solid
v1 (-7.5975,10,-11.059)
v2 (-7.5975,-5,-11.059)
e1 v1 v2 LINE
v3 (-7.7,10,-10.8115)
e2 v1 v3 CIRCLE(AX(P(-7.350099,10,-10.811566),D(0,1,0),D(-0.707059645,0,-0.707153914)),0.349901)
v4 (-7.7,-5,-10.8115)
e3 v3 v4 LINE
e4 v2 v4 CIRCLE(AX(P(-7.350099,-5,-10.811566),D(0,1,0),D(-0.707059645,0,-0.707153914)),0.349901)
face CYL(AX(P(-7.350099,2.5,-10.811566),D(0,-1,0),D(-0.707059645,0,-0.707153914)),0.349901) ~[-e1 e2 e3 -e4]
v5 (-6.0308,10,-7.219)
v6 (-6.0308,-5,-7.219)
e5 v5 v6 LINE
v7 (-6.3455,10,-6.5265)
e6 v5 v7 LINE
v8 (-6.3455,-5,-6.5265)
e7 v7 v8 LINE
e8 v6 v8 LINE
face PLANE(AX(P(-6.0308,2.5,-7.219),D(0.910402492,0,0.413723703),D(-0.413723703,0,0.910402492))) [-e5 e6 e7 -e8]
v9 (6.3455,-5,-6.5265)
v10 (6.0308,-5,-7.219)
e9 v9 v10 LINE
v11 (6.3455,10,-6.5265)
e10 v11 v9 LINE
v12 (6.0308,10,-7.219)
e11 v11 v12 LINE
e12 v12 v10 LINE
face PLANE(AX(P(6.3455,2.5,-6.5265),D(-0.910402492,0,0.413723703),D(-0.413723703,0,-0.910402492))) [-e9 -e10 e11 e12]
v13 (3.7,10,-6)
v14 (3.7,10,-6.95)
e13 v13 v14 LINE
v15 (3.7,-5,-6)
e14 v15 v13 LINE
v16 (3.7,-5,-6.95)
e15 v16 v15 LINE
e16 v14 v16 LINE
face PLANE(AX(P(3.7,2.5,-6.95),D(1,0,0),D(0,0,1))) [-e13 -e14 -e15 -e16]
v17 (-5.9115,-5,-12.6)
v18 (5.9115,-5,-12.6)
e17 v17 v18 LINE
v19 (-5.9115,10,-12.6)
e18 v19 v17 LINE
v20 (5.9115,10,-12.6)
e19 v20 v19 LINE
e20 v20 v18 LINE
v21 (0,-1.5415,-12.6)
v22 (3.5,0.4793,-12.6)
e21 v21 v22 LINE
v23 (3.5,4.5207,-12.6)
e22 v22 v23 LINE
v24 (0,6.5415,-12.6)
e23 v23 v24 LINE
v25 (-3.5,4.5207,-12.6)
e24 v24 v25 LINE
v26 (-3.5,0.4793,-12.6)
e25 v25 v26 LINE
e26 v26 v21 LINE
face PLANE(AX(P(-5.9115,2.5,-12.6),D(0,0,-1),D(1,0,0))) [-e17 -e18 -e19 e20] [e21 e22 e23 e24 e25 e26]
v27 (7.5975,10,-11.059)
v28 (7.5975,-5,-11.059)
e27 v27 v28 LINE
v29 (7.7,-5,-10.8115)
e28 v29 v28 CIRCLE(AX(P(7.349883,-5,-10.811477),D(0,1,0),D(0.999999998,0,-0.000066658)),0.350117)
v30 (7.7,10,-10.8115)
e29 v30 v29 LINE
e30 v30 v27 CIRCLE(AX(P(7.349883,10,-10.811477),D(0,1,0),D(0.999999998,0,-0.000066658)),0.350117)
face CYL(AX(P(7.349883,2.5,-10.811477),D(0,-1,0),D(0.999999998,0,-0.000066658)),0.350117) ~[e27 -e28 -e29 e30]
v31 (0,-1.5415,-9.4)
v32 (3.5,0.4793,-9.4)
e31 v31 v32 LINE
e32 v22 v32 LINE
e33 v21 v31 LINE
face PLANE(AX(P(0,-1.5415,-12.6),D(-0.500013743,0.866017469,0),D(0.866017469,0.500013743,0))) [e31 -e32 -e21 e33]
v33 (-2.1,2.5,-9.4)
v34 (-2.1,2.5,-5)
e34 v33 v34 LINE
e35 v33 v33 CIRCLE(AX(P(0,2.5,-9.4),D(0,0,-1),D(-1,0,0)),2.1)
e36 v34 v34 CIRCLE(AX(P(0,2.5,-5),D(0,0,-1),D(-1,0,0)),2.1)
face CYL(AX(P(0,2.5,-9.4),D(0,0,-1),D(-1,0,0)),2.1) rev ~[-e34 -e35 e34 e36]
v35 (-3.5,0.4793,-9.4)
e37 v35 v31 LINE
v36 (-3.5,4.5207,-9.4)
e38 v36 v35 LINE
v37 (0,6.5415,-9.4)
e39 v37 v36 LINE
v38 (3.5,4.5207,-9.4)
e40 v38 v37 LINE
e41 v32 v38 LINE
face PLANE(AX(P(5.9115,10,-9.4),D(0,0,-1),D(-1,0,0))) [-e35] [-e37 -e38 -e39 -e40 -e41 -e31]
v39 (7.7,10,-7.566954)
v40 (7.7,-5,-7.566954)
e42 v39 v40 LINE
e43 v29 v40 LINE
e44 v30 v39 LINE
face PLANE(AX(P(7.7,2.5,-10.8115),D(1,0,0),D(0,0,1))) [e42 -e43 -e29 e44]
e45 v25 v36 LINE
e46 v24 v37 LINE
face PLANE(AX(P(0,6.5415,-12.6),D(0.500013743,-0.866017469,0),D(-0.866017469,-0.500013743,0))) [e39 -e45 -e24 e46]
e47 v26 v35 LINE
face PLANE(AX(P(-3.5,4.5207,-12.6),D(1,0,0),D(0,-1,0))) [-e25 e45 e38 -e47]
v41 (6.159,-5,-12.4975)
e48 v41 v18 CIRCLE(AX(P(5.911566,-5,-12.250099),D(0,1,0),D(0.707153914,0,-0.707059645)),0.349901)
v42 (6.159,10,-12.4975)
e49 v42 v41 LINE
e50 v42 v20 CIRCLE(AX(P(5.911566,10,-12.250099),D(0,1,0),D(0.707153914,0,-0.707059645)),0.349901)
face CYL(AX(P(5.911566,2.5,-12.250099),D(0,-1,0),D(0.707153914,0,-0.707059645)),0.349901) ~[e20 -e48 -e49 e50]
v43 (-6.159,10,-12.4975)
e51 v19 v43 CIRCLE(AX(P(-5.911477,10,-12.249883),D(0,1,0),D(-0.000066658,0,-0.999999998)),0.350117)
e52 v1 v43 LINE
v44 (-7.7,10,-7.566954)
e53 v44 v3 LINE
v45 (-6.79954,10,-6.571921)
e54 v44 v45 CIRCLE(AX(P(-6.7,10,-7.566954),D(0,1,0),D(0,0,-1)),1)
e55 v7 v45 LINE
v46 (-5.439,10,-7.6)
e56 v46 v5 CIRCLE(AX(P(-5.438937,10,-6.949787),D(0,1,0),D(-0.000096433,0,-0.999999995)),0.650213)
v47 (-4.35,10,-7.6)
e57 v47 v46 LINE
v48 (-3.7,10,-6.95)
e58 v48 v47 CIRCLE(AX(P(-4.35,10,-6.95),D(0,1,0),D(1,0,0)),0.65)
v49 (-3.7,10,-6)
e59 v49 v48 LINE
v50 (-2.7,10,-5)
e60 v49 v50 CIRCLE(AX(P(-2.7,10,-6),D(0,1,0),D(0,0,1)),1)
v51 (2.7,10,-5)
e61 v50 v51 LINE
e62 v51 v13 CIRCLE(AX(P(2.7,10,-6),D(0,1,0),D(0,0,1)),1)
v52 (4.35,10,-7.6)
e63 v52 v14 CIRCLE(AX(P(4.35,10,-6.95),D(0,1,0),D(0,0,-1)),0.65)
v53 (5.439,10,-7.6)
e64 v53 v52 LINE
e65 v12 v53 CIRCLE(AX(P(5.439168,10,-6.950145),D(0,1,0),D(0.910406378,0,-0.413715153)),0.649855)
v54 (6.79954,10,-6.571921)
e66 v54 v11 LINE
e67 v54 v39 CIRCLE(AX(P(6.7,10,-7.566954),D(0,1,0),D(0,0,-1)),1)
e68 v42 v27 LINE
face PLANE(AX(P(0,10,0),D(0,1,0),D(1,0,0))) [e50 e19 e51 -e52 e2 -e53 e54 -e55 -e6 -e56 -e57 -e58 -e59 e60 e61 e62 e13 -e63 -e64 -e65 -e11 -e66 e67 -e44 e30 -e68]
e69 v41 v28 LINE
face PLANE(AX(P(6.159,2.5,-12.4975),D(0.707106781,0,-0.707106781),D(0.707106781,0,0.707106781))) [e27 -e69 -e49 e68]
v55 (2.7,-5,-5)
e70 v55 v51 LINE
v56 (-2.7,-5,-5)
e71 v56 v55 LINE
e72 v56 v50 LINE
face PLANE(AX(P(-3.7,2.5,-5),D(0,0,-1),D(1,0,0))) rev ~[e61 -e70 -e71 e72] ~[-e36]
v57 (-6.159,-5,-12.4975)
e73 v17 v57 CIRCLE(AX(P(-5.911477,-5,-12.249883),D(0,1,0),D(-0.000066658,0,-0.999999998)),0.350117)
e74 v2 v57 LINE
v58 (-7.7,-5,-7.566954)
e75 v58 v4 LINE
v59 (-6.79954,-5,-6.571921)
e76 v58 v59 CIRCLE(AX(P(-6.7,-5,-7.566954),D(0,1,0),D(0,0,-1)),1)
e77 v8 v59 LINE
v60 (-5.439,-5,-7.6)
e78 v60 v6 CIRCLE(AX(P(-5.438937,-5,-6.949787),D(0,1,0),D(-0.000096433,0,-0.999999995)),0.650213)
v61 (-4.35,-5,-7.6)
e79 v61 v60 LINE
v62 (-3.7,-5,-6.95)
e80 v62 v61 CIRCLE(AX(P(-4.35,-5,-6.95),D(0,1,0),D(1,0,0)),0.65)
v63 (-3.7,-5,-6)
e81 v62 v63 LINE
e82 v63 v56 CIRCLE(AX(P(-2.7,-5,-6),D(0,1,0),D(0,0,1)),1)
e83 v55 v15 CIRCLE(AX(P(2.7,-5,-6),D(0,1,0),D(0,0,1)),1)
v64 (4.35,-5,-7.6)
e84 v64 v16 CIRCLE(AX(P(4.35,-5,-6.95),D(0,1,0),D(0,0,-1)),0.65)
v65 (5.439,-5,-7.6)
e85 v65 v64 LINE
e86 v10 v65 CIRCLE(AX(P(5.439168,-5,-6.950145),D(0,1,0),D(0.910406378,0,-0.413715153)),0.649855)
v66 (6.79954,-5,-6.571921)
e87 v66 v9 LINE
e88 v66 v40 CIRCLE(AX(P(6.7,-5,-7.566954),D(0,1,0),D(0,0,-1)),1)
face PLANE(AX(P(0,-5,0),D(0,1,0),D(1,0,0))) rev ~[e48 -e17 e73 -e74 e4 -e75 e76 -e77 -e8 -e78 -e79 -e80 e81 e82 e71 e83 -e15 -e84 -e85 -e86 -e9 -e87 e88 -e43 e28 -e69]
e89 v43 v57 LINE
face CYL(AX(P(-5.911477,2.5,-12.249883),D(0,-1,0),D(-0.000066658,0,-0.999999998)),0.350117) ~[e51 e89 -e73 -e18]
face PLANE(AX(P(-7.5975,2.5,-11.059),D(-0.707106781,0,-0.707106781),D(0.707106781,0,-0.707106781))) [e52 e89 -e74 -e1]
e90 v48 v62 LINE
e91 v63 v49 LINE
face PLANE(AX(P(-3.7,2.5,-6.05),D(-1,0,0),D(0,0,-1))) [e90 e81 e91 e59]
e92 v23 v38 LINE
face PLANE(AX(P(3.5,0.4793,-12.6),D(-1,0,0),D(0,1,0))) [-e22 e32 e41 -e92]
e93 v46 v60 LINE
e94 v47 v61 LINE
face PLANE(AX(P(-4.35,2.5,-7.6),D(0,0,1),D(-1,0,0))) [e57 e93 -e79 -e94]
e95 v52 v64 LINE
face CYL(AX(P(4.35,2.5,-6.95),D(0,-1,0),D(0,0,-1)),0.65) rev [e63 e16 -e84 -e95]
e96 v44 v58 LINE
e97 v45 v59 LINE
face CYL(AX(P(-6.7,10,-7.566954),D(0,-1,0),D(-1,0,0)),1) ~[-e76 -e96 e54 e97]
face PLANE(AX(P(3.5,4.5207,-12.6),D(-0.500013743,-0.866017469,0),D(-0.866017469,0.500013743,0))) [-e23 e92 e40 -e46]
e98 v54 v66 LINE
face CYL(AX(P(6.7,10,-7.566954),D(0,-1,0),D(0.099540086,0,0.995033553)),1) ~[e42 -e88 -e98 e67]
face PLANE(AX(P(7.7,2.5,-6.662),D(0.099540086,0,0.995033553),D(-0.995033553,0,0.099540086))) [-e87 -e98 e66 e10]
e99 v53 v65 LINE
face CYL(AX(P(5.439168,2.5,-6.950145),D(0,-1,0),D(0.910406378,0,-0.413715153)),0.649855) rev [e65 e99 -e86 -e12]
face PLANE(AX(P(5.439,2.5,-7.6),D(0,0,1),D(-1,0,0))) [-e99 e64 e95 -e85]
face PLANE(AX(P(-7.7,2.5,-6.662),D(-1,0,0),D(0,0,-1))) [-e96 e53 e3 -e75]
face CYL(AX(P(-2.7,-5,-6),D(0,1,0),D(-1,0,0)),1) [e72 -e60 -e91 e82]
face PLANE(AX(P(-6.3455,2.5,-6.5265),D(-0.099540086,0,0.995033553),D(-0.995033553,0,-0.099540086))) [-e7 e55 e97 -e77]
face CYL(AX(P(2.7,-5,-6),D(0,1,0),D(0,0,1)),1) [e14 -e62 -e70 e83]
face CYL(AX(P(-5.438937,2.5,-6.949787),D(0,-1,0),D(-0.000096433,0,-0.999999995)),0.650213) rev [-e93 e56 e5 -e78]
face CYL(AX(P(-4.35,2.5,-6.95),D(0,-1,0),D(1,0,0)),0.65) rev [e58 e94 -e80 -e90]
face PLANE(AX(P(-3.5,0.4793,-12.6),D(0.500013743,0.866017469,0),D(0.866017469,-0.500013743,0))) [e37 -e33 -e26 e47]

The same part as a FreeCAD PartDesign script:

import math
import FreeCAD as App
import Part
import Sketcher
from FreeCAD import Vector
Q = App.Units.Quantity


def edges_at(feature, points):
    """Names of the edges that pass closest to the given points."""
    edges = feature.Shape.Edges
    near = lambda p: min(range(len(edges)), key=lambda i: edges[i].distToShape(Part.Vertex(*p))[0])
    return sorted({f"Edge{near(p) + 1}" for p in points})

doc = App.newDocument("Part")
body = doc.addObject("PartDesign::Body", "Body")

# Sketch on XZ plane
sketch1 = body.newObject("Sketcher::SketchObject", "Sketch")
sketch1.AttachmentSupport = (doc.getObject("XZ_Plane"), [""])
sketch1.MapMode = "FlatFace"
sketch1.AttachmentOffset = App.Placement(Vector(0, 0, -2.5), App.Rotation())
sketch1.addGeometry(Part.LineSegment(Vector(-3.7, -6.95, 0), Vector(-3.7, -5, 0)), False)
sketch1.addGeometry(Part.LineSegment(Vector(-3.7, -5, 0), Vector(3.7, -5, 0)), False)
sketch1.addGeometry(Part.LineSegment(Vector(3.7, -5, 0), Vector(3.7, -6.95, 0)), False)
sketch1.addGeometry(Part.ArcOfCircle(Part.Circle(Vector(4.35, -6.95, 0), Vector(0, 0, 1), 0.65), math.radians(180), math.radians(270)), False)
sketch1.addGeometry(Part.LineSegment(Vector(4.35, -7.6, 0), Vector(5.439, -7.6, 0)), False)
sketch1.addGeometry(Part.ArcOfCircle(Part.Circle(Vector(5.439, -6.95, 0), Vector(0, 0, 1), 0.650068), math.radians(-90), math.radians(-24.443955)), False)
sketch1.addGeometry(Part.LineSegment(Vector(6.0308, -7.219, 0), Vector(6.3455, -6.5265, 0)), False)
sketch1.addGeometry(Part.LineSegment(Vector(6.3455, -6.5265, 0), Vector(7.7, -6.662, 0)), False)
sketch1.addGeometry(Part.LineSegment(Vector(7.7, -6.662, 0), Vector(7.7, -10.8115, 0)), False)
sketch1.addGeometry(Part.ArcOfCircle(Part.Circle(Vector(7.35, -10.8115, 0), Vector(0, 0, 1), 0.35), math.radians(-45), math.radians(0)), False)
sketch1.addGeometry(Part.LineSegment(Vector(7.5975, -11.059, 0), Vector(6.159, -12.4975, 0)), False)
sketch1.addGeometry(Part.ArcOfCircle(Part.Circle(Vector(5.9115, -12.25, 0), Vector(0, 0, 1), 0.350018), math.radians(-90), math.radians(-45)), False)
sketch1.addGeometry(Part.LineSegment(Vector(5.9115, -12.6, 0), Vector(-5.9115, -12.6, 0)), False)
sketch1.addGeometry(Part.ArcOfCircle(Part.Circle(Vector(-5.9115, -12.25, 0), Vector(0, 0, 1), 0.35), math.radians(-135), math.radians(-90)), False)
sketch1.addGeometry(Part.LineSegment(Vector(-6.159, -12.4975, 0), Vector(-7.5975, -11.059, 0)), False)
sketch1.addGeometry(Part.ArcOfCircle(Part.Circle(Vector(-7.35, -10.8115, 0), Vector(0, 0, 1), 0.350018), math.radians(180), math.radians(225)), False)
sketch1.addGeometry(Part.LineSegment(Vector(-7.7, -10.8115, 0), Vector(-7.7, -6.662, 0)), False)
sketch1.addGeometry(Part.LineSegment(Vector(-7.7, -6.662, 0), Vector(-6.3455, -6.5265, 0)), False)
sketch1.addGeometry(Part.LineSegment(Vector(-6.3455, -6.5265, 0), Vector(-6.0308, -7.219, 0)), False)
sketch1.addGeometry(Part.ArcOfCircle(Part.Circle(Vector(-5.439, -6.95, 0), Vector(0, 0, 1), 0.65), math.radians(-155.556045), math.radians(-90)), False)
sketch1.addGeometry(Part.LineSegment(Vector(-5.439, -7.6, 0), Vector(-4.35, -7.6, 0)), False)
sketch1.addGeometry(Part.ArcOfCircle(Part.Circle(Vector(-4.35, -6.95, 0), Vector(0, 0, 1), 0.65), math.radians(-90), math.radians(0)), False)
sketch1.addConstraint(Sketcher.Constraint("Coincident", 0, 2, 1, 1))
sketch1.addConstraint(Sketcher.Constraint("Coincident", 1, 2, 2, 1))
sketch1.addConstraint(Sketcher.Constraint("Tangent", 2, 2, 3, 1))
sketch1.addConstraint(Sketcher.Constraint("Tangent", 3, 2, 4, 1))
sketch1.addConstraint(Sketcher.Constraint("Tangent", 4, 2, 5, 1))
sketch1.addConstraint(Sketcher.Constraint("Tangent", 5, 2, 6, 1))
sketch1.addConstraint(Sketcher.Constraint("Coincident", 6, 2, 7, 1))
sketch1.addConstraint(Sketcher.Constraint("Coincident", 7, 2, 8, 1))
sketch1.addConstraint(Sketcher.Constraint("Tangent", 8, 2, 9, 2))
sketch1.addConstraint(Sketcher.Constraint("Tangent", 9, 1, 10, 1))
sketch1.addConstraint(Sketcher.Constraint("Tangent", 10, 2, 11, 2))
sketch1.addConstraint(Sketcher.Constraint("Tangent", 11, 1, 12, 1))
sketch1.addConstraint(Sketcher.Constraint("Tangent", 12, 2, 13, 2))
sketch1.addConstraint(Sketcher.Constraint("Tangent", 13, 1, 14, 1))
sketch1.addConstraint(Sketcher.Constraint("Tangent", 14, 2, 15, 2))
sketch1.addConstraint(Sketcher.Constraint("Tangent", 15, 1, 16, 1))
sketch1.addConstraint(Sketcher.Constraint("Coincident", 16, 2, 17, 1))
sketch1.addConstraint(Sketcher.Constraint("Coincident", 17, 2, 18, 1))
sketch1.addConstraint(Sketcher.Constraint("Tangent", 18, 2, 19, 1))
sketch1.addConstraint(Sketcher.Constraint("Tangent", 19, 2, 20, 1))
sketch1.addConstraint(Sketcher.Constraint("Tangent", 20, 2, 21, 1))
sketch1.addConstraint(Sketcher.Constraint("Tangent", 21, 2, 0, 1))
sketch1.addConstraint(Sketcher.Constraint("Vertical", 0))
sketch1.addConstraint(Sketcher.Constraint("Horizontal", 1))
sketch1.addConstraint(Sketcher.Constraint("Vertical", 2))
sketch1.addConstraint(Sketcher.Constraint("Horizontal", 4))
sketch1.addConstraint(Sketcher.Constraint("Vertical", 8))
sketch1.addConstraint(Sketcher.Constraint("Horizontal", 12))
sketch1.addConstraint(Sketcher.Constraint("Vertical", 16))
sketch1.addConstraint(Sketcher.Constraint("Horizontal", 20))
sketch1.addConstraint(Sketcher.Constraint("Equal", 3, 5))
sketch1.addConstraint(Sketcher.Constraint("Equal", 9, 11))
sketch1.addConstraint(Sketcher.Constraint("Equal", 11, 13))
sketch1.addConstraint(Sketcher.Constraint("Equal", 13, 15))
sketch1.addConstraint(Sketcher.Constraint("Equal", 5, 19))
sketch1.addConstraint(Sketcher.Constraint("Equal", 19, 21))
sketch1.addConstraint(Sketcher.Constraint("Symmetric", 9, 3, 15, 3, -2))
sketch1.addConstraint(Sketcher.Constraint("Symmetric", 5, 3, 19, 3, -2))
sketch1.addConstraint(Sketcher.Constraint("Symmetric", 6, 2, 17, 2, -2))
sketch1.addConstraint(Sketcher.Constraint("Perpendicular", 10, 14))
sketch1.addConstraint(Sketcher.Constraint("Horizontal", 10, 2, 13, 1))
sketch1.addConstraint(Sketcher.Constraint("Horizontal", 7, 2, 16, 2))
sketch1.addConstraint(Sketcher.Constraint("Equal", 4, 20))
sketch1.addConstraint(Sketcher.Constraint("DistanceY", 0, 1, 0, 2, 1.95))
sketch1.addConstraint(Sketcher.Constraint("Radius", 3, 0.65))
sketch1.addConstraint(Sketcher.Constraint("Radius", 9, 0.35))
sketch1.addConstraint(Sketcher.Constraint("DistanceX", 1, 1, 1, 2, 7.4))
sketch1.addConstraint(Sketcher.Constraint("DistanceY", 0, 2, -1, 1, 5.0))
sketch1.addConstraint(Sketcher.Constraint("DistanceX", 3, 3, 9, 3, 3.0))
sketch1.addConstraint(Sketcher.Constraint("DistanceY", 11, 1, -1, 1, 12.6))
sketch1.addConstraint(Sketcher.Constraint("Angle", 6, Q("65.561 deg")))
sketch1.addConstraint(Sketcher.Constraint("DistanceX", 4, 1, 4, 2, 1.089))
sketch1.addConstraint(Sketcher.Constraint("DistanceX", 12, 2, 12, 1, 11.823))
sketch1.addConstraint(Sketcher.Constraint("DistanceY", 8, 2, 8, 1, 4.1495))
sketch1.addConstraint(Sketcher.Constraint("DistanceY", 15, 3, 17, 2, 4.285))
pad1 = body.newObject("PartDesign::Pad", "Pad")
pad1.Profile = sketch1
pad1.Length = 15
pad1.Midplane = True

# Sketch on XY plane
sketch2 = body.newObject("Sketcher::SketchObject", "Sketch001")
sketch2.AttachmentSupport = (doc.getObject("XY_Plane"), [""])
sketch2.MapMode = "FlatFace"
sketch2.AttachmentOffset = App.Placement(Vector(0, 0, -12.6), App.Rotation())
sketch2.addGeometry(Part.LineSegment(Vector(0, 6.5415, 0), Vector(3.5, 4.5207, 0)), False)
sketch2.addGeometry(Part.LineSegment(Vector(3.5, 4.5207, 0), Vector(3.5, 0.4793, 0)), False)
sketch2.addGeometry(Part.LineSegment(Vector(3.5, 0.4793, 0), Vector(0, -1.5415, 0)), False)
sketch2.addGeometry(Part.LineSegment(Vector(0, -1.5415, 0), Vector(-3.5, 0.4793, 0)), False)
sketch2.addGeometry(Part.LineSegment(Vector(-3.5, 0.4793, 0), Vector(-3.5, 4.5207, 0)), False)
sketch2.addGeometry(Part.LineSegment(Vector(-3.5, 4.5207, 0), Vector(0, 6.5415, 0)), False)
sketch2.addConstraint(Sketcher.Constraint("Coincident", 0, 2, 1, 1))
sketch2.addConstraint(Sketcher.Constraint("Coincident", 1, 2, 2, 1))
sketch2.addConstraint(Sketcher.Constraint("Coincident", 2, 2, 3, 1))
sketch2.addConstraint(Sketcher.Constraint("Coincident", 3, 2, 4, 1))
sketch2.addConstraint(Sketcher.Constraint("Coincident", 4, 2, 5, 1))
sketch2.addConstraint(Sketcher.Constraint("Coincident", 5, 2, 0, 1))
sketch2.addConstraint(Sketcher.Constraint("Vertical", 1))
sketch2.addConstraint(Sketcher.Constraint("Vertical", 4))
sketch2.addConstraint(Sketcher.Constraint("Symmetric", 1, 2, 3, 2, -2))
sketch2.addConstraint(Sketcher.Constraint("PointOnObject", 2, 2, -2))
sketch2.addConstraint(Sketcher.Constraint("PointOnObject", 5, 2, -2))
sketch2.addConstraint(Sketcher.Constraint("Parallel", 0, 3))
sketch2.addConstraint(Sketcher.Constraint("Parallel", 2, 5))
sketch2.addConstraint(Sketcher.Constraint("DistanceX", 3, 2, 1, 2, 7.0))
sketch2.addConstraint(Sketcher.Constraint("Angle", 0, Q("-30.001 deg")))
sketch2.addConstraint(Sketcher.Constraint("DistanceY", 1, 2, 1, 1, 4.0414))
sketch2.addConstraint(Sketcher.Constraint("DistanceY", -1, 1, 0, 2, 4.5207))
pocket1 = body.newObject("PartDesign::Pocket", "Pocket")
pocket1.Profile = sketch2
pocket1.Length = 3.2
pocket1.Reversed = True

# Sketch on XY plane
sketch3 = body.newObject("Sketcher::SketchObject", "Sketch002")
sketch3.AttachmentSupport = (doc.getObject("XY_Plane"), [""])
sketch3.MapMode = "FlatFace"
sketch3.AttachmentOffset = App.Placement(Vector(0, 0, -9.4), App.Rotation())
sketch3.addGeometry(Part.Circle(Vector(0, 2.5, 0), Vector(0, 0, 1), 2.1), False)
sketch3.addConstraint(Sketcher.Constraint("PointOnObject", 0, 3, -2))
sketch3.addConstraint(Sketcher.Constraint("Diameter", 0, 4.2))
sketch3.addConstraint(Sketcher.Constraint("DistanceY", -1, 1, 0, 3, 2.5))
pocket2 = body.newObject("PartDesign::Pocket", "Pocket001")
pocket2.Profile = sketch3
pocket2.Type = "UpToFirst"
pocket2.Reversed = True
doc.recompute()

fillet = body.newObject("PartDesign::Fillet", "Fillet")
fillet.Base = (pocket2, edges_at(pocket2, [
    (-3.7, 2.5, -5),
    (3.7, 2.5, -5),
    (-7.7, 2.5, -6.662),
    (7.7, 2.5, -6.662),
]))
fillet.Radius = 1

doc.recompute()
